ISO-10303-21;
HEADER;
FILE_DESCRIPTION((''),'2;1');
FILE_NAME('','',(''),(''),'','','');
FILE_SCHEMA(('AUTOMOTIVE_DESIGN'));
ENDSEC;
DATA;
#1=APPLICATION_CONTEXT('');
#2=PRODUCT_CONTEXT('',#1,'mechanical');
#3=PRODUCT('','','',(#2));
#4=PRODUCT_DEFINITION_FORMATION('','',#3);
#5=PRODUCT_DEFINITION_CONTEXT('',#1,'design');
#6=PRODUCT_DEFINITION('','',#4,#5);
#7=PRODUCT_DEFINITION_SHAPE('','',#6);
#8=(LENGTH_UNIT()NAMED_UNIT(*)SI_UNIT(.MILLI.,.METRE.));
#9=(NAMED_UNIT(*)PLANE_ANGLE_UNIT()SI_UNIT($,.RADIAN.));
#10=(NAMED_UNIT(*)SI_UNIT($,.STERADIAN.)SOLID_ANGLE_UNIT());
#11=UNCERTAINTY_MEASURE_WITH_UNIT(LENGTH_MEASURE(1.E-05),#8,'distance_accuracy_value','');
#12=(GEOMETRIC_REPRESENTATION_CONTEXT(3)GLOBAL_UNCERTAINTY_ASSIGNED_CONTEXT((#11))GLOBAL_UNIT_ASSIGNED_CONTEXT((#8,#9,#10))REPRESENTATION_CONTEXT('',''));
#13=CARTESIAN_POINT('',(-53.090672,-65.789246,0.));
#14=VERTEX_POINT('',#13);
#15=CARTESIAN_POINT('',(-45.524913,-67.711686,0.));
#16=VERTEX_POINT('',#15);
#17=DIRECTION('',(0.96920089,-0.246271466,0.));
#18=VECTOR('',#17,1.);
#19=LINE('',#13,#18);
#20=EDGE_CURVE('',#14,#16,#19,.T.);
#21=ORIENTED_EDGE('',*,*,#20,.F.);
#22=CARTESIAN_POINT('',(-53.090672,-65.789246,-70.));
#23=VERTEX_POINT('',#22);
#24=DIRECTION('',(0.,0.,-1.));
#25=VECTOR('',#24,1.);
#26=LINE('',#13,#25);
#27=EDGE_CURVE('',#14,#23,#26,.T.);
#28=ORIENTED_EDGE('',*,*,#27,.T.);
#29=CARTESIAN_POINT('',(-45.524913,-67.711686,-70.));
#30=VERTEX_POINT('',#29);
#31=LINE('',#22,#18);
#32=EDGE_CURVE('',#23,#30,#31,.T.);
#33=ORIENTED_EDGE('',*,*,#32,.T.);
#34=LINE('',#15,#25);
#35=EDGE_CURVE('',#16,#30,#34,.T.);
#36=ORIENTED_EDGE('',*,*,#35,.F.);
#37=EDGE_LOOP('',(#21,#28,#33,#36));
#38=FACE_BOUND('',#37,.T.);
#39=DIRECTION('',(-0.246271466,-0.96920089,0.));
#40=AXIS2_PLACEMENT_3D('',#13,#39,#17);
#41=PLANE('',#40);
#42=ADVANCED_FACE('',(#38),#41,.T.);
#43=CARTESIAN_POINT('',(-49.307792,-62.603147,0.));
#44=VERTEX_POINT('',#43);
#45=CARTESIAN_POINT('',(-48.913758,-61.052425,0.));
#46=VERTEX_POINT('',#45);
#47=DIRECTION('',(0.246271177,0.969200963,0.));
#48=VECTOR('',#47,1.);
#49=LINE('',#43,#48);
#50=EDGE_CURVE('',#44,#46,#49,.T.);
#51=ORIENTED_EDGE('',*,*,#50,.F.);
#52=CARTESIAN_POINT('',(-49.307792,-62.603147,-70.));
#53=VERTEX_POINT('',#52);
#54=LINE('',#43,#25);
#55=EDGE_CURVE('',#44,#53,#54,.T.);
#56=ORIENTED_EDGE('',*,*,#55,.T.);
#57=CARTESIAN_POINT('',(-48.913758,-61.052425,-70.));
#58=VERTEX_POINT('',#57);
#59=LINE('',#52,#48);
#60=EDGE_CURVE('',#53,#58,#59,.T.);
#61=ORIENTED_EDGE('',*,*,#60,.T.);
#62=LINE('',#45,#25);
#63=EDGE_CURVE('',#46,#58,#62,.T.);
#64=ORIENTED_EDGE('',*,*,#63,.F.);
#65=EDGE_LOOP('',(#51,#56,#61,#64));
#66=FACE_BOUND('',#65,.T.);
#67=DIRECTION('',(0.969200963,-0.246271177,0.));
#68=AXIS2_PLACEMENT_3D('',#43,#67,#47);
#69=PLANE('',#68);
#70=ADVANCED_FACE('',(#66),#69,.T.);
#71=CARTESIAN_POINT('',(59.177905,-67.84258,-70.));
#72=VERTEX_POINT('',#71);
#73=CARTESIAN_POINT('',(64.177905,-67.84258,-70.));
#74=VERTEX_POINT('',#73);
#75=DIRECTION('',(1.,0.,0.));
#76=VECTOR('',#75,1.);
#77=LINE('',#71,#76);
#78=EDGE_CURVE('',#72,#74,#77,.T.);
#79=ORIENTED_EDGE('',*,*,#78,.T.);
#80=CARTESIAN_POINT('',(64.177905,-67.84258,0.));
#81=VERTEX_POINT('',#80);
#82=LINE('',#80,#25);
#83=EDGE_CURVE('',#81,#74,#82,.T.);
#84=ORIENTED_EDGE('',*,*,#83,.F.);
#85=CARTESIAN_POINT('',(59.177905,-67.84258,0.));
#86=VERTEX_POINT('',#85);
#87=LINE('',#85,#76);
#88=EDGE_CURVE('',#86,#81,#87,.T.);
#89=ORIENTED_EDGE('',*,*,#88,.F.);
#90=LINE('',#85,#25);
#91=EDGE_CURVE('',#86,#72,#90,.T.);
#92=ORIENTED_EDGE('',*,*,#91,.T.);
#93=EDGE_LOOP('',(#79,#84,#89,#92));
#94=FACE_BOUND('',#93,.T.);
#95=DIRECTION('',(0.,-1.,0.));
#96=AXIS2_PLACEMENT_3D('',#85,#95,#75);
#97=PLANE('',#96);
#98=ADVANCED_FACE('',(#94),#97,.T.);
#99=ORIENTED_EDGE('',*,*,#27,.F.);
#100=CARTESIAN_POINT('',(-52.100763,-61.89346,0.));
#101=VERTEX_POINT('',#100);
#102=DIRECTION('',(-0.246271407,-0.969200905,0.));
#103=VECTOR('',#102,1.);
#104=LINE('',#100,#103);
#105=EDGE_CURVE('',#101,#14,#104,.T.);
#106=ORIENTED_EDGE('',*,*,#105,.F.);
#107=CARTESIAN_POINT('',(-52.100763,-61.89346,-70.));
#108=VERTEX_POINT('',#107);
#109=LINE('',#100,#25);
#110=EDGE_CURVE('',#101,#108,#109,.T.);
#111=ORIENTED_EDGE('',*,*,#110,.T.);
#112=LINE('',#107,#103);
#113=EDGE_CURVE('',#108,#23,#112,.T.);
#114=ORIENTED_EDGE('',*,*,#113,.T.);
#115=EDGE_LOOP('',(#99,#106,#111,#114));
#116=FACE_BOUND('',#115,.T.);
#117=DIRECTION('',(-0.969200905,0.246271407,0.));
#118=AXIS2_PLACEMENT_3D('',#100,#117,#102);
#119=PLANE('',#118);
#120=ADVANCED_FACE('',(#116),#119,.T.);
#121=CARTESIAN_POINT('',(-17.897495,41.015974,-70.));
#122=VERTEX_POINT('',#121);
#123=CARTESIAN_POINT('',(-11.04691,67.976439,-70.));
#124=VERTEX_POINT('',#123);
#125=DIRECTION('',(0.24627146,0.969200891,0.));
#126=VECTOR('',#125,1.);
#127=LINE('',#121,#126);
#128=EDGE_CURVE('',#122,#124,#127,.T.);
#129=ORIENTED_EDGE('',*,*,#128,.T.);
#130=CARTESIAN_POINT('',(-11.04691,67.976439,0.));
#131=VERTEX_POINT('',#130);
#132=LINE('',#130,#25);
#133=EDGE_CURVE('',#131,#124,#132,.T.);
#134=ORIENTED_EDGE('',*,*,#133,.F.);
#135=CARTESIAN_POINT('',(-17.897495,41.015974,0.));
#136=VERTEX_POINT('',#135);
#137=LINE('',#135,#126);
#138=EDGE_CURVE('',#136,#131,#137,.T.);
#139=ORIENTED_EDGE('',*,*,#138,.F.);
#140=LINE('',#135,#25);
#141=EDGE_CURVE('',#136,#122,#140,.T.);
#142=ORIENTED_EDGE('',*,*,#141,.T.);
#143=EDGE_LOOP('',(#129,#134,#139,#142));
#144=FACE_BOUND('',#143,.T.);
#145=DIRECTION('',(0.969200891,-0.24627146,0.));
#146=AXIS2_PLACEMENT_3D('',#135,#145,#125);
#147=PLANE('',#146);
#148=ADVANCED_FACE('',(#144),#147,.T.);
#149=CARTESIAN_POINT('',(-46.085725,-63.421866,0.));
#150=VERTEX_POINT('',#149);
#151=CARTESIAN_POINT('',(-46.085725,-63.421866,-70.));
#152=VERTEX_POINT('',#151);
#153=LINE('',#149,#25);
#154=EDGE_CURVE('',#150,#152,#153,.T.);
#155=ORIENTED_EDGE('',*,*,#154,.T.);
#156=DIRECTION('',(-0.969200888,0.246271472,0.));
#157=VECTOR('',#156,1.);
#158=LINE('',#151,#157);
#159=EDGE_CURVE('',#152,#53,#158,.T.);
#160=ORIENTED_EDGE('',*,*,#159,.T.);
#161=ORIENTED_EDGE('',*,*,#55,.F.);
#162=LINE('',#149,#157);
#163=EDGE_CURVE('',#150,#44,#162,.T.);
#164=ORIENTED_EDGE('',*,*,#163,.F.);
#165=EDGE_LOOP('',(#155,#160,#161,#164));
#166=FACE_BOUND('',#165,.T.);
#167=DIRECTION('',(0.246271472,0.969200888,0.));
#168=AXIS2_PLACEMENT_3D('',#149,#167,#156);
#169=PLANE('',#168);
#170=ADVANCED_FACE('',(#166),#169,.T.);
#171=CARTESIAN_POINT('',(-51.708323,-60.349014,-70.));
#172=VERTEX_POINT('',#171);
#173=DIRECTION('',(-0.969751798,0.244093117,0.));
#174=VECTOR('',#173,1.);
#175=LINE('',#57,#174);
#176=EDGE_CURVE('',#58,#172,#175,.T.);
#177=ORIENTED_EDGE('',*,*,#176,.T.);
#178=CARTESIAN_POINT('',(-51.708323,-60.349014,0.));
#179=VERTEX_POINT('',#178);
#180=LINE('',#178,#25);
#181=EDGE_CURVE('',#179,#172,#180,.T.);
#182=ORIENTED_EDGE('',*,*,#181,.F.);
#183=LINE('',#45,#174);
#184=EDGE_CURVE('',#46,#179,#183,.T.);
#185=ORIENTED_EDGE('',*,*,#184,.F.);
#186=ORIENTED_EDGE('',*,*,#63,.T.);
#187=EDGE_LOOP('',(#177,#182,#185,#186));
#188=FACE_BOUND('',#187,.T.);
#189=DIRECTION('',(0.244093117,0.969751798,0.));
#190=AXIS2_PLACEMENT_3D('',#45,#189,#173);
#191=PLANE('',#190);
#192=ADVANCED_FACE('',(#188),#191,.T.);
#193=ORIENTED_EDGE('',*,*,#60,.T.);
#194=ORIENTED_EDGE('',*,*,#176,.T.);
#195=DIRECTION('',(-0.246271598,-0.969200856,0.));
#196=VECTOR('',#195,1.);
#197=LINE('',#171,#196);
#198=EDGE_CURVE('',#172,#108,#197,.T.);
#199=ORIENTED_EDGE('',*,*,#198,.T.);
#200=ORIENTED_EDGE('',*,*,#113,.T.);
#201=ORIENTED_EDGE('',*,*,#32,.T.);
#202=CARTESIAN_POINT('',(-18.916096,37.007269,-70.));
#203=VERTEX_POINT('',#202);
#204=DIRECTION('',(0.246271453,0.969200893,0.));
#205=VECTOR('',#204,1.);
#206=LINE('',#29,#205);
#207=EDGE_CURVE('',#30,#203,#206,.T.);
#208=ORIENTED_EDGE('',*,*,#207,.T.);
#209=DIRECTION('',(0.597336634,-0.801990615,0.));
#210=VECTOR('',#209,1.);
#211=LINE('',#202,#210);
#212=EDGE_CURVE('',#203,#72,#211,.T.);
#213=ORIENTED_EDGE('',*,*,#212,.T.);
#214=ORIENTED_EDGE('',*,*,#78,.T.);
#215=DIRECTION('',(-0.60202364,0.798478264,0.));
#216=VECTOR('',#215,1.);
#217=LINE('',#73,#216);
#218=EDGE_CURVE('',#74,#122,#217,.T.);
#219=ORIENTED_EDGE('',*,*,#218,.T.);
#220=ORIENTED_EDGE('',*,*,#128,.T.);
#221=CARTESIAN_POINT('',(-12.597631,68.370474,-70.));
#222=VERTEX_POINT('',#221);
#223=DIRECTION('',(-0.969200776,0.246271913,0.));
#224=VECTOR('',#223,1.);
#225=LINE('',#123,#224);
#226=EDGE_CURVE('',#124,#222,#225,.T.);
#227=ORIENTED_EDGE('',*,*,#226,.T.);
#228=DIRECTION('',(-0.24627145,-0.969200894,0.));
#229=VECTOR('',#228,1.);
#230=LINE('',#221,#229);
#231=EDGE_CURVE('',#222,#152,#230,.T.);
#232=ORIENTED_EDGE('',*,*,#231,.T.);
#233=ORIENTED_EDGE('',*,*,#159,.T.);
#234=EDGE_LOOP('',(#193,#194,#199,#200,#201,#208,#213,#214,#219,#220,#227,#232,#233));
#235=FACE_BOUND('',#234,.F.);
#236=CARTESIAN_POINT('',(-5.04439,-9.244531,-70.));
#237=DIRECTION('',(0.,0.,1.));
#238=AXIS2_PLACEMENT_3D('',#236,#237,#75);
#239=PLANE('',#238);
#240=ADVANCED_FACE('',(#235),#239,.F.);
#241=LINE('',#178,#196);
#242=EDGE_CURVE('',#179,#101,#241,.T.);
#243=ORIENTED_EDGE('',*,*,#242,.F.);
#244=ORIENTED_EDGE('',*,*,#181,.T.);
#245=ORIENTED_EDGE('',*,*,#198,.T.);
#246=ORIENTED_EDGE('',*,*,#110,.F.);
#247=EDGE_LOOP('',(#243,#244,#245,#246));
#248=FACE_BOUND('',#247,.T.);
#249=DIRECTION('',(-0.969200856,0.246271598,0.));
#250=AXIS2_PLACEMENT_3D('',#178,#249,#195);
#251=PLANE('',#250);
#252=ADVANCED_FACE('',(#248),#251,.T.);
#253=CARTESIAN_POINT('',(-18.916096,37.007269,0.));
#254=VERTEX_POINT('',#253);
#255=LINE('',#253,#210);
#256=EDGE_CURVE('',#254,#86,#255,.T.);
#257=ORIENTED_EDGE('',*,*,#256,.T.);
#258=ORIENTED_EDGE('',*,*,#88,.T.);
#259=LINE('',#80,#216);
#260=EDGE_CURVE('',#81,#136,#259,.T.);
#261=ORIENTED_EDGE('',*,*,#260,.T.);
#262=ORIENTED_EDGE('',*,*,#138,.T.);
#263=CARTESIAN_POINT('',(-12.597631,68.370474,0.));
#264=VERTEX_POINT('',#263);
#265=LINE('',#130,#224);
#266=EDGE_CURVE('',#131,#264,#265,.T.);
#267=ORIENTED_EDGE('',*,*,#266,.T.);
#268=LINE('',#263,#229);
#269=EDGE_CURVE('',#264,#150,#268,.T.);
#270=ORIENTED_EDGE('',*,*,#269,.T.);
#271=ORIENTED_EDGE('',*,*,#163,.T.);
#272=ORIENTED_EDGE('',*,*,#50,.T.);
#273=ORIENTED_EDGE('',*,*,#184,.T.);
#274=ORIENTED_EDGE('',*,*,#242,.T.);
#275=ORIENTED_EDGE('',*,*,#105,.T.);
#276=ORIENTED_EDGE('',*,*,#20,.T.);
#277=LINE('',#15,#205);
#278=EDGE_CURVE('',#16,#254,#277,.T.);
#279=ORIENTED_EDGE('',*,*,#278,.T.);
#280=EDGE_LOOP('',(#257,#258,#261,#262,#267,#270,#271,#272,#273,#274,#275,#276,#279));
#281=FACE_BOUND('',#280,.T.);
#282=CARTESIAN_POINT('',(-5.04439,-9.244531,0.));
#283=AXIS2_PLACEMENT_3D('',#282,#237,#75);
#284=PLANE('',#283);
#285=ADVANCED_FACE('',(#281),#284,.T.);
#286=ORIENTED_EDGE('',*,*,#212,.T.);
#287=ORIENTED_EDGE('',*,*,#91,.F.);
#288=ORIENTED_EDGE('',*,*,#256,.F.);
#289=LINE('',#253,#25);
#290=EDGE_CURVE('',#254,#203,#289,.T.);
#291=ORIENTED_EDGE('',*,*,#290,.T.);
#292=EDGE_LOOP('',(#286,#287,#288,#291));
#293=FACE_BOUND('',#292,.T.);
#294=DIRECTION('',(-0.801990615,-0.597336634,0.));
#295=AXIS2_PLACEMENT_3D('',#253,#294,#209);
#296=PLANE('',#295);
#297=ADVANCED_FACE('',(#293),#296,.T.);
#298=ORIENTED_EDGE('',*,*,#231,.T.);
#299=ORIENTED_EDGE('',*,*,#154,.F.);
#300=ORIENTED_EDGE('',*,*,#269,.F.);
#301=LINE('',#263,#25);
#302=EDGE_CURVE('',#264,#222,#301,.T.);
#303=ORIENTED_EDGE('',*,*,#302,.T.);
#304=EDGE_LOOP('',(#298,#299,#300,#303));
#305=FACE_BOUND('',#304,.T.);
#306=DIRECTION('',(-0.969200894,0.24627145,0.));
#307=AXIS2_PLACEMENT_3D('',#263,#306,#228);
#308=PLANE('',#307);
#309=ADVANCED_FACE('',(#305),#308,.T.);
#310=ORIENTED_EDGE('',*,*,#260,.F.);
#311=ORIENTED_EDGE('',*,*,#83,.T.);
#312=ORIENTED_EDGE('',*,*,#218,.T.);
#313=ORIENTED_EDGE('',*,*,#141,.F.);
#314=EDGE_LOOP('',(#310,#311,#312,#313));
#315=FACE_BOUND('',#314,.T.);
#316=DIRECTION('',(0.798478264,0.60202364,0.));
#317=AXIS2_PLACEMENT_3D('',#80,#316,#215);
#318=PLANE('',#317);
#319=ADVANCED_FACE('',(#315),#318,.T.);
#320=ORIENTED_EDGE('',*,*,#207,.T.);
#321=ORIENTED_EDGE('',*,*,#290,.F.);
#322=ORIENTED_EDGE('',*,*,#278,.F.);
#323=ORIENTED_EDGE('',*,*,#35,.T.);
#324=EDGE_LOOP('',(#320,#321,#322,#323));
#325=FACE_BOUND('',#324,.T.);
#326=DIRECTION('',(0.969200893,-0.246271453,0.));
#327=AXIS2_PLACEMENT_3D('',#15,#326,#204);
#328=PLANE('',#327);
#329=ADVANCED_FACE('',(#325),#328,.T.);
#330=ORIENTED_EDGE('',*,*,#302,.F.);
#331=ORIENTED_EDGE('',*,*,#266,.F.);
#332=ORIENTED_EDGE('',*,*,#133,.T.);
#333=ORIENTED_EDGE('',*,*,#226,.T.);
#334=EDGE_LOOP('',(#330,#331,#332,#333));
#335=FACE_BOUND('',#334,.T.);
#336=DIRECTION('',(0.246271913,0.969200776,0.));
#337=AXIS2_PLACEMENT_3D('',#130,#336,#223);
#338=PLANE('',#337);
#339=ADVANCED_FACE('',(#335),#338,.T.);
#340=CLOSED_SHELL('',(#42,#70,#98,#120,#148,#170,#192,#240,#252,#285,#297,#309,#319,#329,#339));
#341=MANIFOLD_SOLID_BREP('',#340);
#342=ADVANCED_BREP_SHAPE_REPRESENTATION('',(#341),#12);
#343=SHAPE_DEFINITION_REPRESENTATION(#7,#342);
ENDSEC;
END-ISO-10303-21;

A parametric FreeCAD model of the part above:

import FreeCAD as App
import Part
import Sketcher
Q = App.Units.Quantity


def add_polygon(sketch, points):
    """Adds a closed chain of lines whose ends are joined by coincident constraints."""
    first, n = sketch.GeometryCount, len(points)
    for a, b in zip(points, points[1:] + points[:1]):
        sketch.addGeometry(Part.LineSegment(App.Vector(*a, 0), App.Vector(*b, 0)), False)
    for i in range(n):
        sketch.addConstraint(Sketcher.Constraint("Coincident", first + i, 2, first + (i + 1) % n, 1))

doc = App.newDocument("Part")
body = doc.addObject("PartDesign::Body", "Body")

# Sketch on XY plane
sketch1 = body.newObject("Sketcher::SketchObject", "Sketch")
sketch1.AttachmentSupport = (doc.getObject("XY_Plane"), [""])
sketch1.MapMode = "FlatFace"
add_polygon(sketch1, [(-53.090672, -65.789246), (-45.524913, -67.711686), (-18.916096, 37.007269), (59.177905, -67.84258), (64.177905, -67.84258), (-17.897495, 41.015974), (-11.04691, 67.976439), (-12.597631, 68.370474), (-46.085725, -63.421866), (-49.307792, -62.603147), (-48.913758, -61.052425), (-51.708323, -60.349014), (-52.100763, -61.89346)])  # lines 0-12
sketch1.addConstraint([
    Sketcher.Constraint("Horizontal", 3),
    Sketcher.Constraint("DistanceX", 3, 1, 3, 2, Q("5 mm")),
    Sketcher.Constraint("Distance", 6, Q("1.6 mm")),
    Sketcher.Constraint("Distance", 9, Q("1.6 mm")),
    Sketcher.Constraint("DistanceX", 1, 2, 2, 2, Q("78.094001 mm")),
    Sketcher.Constraint("DistanceX", 1, 2, 4, 2, Q("1.018601 mm")),
    Sketcher.Constraint("DistanceY", 4, 2, 6, 2, Q("27.3545 mm")),
    Sketcher.Constraint("DistanceY", 9, 2, 4, 2, Q("102.068399 mm")),
    Sketcher.Constraint("DistanceX", 10, 2, 7, 2, Q("5.622598 mm")),
    Sketcher.Constraint("DistanceY", 12, 2, 8, 2, Q("3.186099 mm")),
    Sketcher.Constraint("Distance", 4, Q("136.33252 mm")),
    Sketcher.Constraint("Distance", 5, Q("27.81721 mm")),
    Sketcher.Constraint("DistanceY", -1, 1, 1, 2, Q("37.007269 mm")),
    Sketcher.Constraint("DistanceY", 2, 2, -1, 1, Q("67.84258 mm")),
    Sketcher.Constraint("DistanceX", 5, 2, -1, 1, Q("11.04691 mm")),
    Sketcher.Constraint("DistanceY", -1, 1, 5, 2, Q("67.976439 mm")),
    Sketcher.Constraint("DistanceY", 11, 2, -1, 1, Q("61.89346 mm")),
    Sketcher.Constraint("DistanceX", 12, 2, -1, 1, Q("53.090672 mm")),
    Sketcher.Constraint("DistanceX", 0, 2, 2, 2, Q("104.702818 mm")),
    Sketcher.Constraint("DistanceY", 0, 2, 4, 2, Q("108.72766 mm")),
    Sketcher.Constraint("DistanceX", 7, 2, 0, 2, Q("0.560812 mm")),
    Sketcher.Constraint("DistanceY", 0, 2, 7, 2, Q("4.28982 mm")),
    Sketcher.Constraint("DistanceY", 7, 2, 8, 2, Q("0.818719 mm")),
    Sketcher.Constraint("DistanceX", 8, 2, 0, 2, Q("3.782879 mm")),
    Sketcher.Constraint("DistanceY", 9, 2, 10, 2, Q("0.703411 mm")),
    Sketcher.Constraint("DistanceX", 11, 2, 10, 2, Q("0.39244 mm")),
])
pad1 = body.newObject("PartDesign::Pad", "Pad")
pad1.Profile = sketch1
pad1.Length = 70
pad1.Reversed = True

doc.recompute()
